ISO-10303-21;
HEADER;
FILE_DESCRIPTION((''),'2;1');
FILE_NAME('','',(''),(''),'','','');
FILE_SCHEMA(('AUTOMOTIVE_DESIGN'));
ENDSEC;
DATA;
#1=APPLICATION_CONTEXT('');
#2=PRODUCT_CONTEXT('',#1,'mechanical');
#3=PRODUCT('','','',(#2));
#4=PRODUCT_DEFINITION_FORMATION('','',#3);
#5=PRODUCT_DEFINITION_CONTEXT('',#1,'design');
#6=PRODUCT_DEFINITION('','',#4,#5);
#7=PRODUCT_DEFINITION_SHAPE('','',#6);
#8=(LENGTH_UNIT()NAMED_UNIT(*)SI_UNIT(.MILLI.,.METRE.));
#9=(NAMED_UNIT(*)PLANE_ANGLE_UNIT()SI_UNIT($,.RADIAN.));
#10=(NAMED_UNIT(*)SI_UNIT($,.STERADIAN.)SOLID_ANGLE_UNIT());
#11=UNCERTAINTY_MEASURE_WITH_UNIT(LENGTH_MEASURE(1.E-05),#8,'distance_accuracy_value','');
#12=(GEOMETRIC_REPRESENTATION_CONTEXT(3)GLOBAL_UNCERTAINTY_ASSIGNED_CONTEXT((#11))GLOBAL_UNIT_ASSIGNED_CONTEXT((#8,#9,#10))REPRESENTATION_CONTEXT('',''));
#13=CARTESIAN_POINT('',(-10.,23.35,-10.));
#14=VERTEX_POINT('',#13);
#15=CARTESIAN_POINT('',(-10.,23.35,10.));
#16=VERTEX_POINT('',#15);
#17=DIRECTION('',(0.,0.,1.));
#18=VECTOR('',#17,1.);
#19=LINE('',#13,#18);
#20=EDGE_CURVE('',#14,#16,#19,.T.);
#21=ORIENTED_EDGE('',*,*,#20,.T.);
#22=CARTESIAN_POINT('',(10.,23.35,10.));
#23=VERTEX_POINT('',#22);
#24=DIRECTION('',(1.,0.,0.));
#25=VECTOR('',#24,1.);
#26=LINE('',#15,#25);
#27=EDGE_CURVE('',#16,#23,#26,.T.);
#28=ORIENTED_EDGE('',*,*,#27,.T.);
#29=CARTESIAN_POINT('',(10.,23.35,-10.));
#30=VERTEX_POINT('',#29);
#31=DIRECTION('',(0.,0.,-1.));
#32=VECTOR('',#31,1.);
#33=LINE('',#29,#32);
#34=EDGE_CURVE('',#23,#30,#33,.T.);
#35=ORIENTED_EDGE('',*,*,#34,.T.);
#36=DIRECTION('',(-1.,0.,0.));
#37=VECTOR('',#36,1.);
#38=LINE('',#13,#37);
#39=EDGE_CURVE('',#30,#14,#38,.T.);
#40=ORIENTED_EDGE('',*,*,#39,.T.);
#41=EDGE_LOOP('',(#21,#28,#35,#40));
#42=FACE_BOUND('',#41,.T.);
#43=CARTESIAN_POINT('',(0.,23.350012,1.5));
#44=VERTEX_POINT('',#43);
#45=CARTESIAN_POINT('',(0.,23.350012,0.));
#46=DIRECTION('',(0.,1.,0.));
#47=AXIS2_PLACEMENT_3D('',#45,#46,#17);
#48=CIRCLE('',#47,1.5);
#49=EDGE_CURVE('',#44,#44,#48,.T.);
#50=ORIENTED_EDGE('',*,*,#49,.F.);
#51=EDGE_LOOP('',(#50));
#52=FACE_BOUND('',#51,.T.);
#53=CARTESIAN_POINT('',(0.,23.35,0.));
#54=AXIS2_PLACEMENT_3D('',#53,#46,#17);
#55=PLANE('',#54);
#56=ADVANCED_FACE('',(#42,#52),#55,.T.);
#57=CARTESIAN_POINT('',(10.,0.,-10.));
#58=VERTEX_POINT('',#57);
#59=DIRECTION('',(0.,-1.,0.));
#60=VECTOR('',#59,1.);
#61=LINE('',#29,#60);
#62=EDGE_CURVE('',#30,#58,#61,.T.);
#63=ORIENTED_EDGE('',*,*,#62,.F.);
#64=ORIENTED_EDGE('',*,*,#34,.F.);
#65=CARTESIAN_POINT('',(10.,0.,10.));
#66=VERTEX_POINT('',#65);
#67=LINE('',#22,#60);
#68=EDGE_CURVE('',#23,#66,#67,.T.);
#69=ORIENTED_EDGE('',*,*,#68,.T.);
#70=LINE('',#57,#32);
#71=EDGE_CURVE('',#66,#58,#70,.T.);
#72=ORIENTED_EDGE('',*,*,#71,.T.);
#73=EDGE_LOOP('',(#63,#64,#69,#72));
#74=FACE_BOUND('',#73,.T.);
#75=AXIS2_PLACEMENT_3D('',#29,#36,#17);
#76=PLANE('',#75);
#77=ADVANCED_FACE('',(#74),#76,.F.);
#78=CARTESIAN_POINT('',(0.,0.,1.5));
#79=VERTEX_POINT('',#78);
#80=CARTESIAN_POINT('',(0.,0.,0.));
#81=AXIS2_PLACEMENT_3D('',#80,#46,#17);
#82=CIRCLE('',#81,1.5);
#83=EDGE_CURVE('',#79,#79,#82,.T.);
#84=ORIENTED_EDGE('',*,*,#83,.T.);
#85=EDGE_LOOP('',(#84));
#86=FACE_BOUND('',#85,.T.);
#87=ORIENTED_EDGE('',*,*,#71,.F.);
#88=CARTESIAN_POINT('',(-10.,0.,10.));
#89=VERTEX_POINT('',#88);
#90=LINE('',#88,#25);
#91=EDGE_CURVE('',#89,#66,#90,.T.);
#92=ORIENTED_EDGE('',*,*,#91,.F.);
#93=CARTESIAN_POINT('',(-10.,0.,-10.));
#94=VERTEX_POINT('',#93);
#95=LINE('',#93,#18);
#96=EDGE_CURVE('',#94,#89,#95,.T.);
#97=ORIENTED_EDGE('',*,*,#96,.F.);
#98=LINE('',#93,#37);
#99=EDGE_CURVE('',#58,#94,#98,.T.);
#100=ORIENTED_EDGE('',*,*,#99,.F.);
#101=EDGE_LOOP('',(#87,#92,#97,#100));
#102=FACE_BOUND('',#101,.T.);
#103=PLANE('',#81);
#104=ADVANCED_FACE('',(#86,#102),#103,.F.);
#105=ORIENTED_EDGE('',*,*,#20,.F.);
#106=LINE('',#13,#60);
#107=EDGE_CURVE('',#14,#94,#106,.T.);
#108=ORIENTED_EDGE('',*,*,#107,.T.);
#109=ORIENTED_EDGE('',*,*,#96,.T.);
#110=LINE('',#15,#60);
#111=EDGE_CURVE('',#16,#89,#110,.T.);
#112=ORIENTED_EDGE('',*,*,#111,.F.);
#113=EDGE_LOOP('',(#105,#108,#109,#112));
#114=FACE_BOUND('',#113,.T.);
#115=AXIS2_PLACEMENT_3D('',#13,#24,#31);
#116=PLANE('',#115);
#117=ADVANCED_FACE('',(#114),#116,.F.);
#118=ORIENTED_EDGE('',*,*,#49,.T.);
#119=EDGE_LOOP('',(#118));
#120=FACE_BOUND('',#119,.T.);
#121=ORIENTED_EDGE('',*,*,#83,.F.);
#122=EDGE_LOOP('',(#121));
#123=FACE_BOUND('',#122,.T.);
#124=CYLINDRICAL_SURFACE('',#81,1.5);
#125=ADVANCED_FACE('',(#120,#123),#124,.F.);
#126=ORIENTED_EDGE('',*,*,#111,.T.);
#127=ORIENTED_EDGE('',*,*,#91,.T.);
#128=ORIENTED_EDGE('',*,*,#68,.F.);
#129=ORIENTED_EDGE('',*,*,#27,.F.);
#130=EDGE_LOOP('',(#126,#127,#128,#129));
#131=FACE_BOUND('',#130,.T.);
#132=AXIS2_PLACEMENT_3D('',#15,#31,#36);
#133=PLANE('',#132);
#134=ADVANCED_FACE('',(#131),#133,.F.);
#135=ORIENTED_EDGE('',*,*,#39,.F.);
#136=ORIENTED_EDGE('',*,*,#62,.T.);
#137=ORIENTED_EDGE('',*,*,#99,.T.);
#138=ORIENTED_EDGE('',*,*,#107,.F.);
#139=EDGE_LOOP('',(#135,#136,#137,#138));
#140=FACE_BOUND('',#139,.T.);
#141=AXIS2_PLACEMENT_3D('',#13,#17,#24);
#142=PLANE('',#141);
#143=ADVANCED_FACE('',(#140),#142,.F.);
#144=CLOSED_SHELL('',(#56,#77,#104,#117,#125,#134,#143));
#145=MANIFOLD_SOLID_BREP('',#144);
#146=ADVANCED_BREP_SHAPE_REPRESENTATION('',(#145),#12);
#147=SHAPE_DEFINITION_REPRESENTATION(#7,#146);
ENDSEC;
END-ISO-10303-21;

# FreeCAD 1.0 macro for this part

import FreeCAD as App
import Part
import Sketcher
from FreeCAD import Vector


def add_polygon(sketch, points):
    """Adds a closed chain of lines whose ends are joined by coincident constraints."""
    first, n = sketch.GeometryCount, len(points)
    for a, b in zip(points, points[1:] + points[:1]):
        sketch.addGeometry(Part.LineSegment(App.Vector(*a, 0), App.Vector(*b, 0)), False)
    for i in range(n):
        sketch.addConstraint(Sketcher.Constraint("Coincident", first + i, 2, first + (i + 1) % n, 1))

doc = App.newDocument("Part")
body = doc.addObject("PartDesign::Body", "Body")

# Sketch on XZ plane
sketch1 = doc.addObject("Sketcher::SketchObject", "Sketch")
body.addObject(sketch1)
sketch1.AttachmentSupport = (doc.XZ_Plane, [""])
sketch1.MapMode = "FlatFace"
add_polygon(sketch1, [(-10, -10), (-10, 10), (10, 10), (10, -10)])  # lines 0-3
sketch1.addConstraint(Sketcher.Constraint("Vertical", 0))
sketch1.addConstraint(Sketcher.Constraint("Horizontal", 1))
sketch1.addConstraint(Sketcher.Constraint("Vertical", 2))
sketch1.addConstraint(Sketcher.Constraint("Horizontal", 3))
sketch1.addConstraint(Sketcher.Constraint("Symmetric", 0, 2, 2, 2, -1, 1))
sketch1.addConstraint(Sketcher.Constraint("Equal", 3, 0))
sketch1.addConstraint(Sketcher.Constraint("DistanceX", 1, 1, 1, 2, 20.0))
pad1 = doc.addObject("PartDesign::Pad", "Pad")
body.addObject(pad1)
pad1.Profile = sketch1
pad1.Length = 23.35
pad1.Reversed = True

# Sketch on XZ plane
sketch2 = doc.addObject("Sketcher::SketchObject", "Sketch001")
body.addObject(sketch2)
sketch2.AttachmentSupport = (doc.XZ_Plane, [""])
sketch2.MapMode = "FlatFace"
sketch2.AttachmentOffset = App.Placement(Vector(0, 0, -23.35), App.Rotation())
sketch2.addGeometry(Part.Circle(Vector(0, 0, 0), Vector(0, 0, 1), 1.5), False)
sketch2.addConstraint(Sketcher.Constraint("Coincident", 0, 3, -1, 1))
sketch2.addConstraint(Sketcher.Constraint("Diameter", 0, 3.0))
pocket1 = doc.addObject("PartDesign::Pocket", "Pocket")
body.addObject(pocket1)
pocket1.Profile = sketch2
pocket1.Type = "ThroughAll"
pocket1.Midplane = True

doc.recompute()
